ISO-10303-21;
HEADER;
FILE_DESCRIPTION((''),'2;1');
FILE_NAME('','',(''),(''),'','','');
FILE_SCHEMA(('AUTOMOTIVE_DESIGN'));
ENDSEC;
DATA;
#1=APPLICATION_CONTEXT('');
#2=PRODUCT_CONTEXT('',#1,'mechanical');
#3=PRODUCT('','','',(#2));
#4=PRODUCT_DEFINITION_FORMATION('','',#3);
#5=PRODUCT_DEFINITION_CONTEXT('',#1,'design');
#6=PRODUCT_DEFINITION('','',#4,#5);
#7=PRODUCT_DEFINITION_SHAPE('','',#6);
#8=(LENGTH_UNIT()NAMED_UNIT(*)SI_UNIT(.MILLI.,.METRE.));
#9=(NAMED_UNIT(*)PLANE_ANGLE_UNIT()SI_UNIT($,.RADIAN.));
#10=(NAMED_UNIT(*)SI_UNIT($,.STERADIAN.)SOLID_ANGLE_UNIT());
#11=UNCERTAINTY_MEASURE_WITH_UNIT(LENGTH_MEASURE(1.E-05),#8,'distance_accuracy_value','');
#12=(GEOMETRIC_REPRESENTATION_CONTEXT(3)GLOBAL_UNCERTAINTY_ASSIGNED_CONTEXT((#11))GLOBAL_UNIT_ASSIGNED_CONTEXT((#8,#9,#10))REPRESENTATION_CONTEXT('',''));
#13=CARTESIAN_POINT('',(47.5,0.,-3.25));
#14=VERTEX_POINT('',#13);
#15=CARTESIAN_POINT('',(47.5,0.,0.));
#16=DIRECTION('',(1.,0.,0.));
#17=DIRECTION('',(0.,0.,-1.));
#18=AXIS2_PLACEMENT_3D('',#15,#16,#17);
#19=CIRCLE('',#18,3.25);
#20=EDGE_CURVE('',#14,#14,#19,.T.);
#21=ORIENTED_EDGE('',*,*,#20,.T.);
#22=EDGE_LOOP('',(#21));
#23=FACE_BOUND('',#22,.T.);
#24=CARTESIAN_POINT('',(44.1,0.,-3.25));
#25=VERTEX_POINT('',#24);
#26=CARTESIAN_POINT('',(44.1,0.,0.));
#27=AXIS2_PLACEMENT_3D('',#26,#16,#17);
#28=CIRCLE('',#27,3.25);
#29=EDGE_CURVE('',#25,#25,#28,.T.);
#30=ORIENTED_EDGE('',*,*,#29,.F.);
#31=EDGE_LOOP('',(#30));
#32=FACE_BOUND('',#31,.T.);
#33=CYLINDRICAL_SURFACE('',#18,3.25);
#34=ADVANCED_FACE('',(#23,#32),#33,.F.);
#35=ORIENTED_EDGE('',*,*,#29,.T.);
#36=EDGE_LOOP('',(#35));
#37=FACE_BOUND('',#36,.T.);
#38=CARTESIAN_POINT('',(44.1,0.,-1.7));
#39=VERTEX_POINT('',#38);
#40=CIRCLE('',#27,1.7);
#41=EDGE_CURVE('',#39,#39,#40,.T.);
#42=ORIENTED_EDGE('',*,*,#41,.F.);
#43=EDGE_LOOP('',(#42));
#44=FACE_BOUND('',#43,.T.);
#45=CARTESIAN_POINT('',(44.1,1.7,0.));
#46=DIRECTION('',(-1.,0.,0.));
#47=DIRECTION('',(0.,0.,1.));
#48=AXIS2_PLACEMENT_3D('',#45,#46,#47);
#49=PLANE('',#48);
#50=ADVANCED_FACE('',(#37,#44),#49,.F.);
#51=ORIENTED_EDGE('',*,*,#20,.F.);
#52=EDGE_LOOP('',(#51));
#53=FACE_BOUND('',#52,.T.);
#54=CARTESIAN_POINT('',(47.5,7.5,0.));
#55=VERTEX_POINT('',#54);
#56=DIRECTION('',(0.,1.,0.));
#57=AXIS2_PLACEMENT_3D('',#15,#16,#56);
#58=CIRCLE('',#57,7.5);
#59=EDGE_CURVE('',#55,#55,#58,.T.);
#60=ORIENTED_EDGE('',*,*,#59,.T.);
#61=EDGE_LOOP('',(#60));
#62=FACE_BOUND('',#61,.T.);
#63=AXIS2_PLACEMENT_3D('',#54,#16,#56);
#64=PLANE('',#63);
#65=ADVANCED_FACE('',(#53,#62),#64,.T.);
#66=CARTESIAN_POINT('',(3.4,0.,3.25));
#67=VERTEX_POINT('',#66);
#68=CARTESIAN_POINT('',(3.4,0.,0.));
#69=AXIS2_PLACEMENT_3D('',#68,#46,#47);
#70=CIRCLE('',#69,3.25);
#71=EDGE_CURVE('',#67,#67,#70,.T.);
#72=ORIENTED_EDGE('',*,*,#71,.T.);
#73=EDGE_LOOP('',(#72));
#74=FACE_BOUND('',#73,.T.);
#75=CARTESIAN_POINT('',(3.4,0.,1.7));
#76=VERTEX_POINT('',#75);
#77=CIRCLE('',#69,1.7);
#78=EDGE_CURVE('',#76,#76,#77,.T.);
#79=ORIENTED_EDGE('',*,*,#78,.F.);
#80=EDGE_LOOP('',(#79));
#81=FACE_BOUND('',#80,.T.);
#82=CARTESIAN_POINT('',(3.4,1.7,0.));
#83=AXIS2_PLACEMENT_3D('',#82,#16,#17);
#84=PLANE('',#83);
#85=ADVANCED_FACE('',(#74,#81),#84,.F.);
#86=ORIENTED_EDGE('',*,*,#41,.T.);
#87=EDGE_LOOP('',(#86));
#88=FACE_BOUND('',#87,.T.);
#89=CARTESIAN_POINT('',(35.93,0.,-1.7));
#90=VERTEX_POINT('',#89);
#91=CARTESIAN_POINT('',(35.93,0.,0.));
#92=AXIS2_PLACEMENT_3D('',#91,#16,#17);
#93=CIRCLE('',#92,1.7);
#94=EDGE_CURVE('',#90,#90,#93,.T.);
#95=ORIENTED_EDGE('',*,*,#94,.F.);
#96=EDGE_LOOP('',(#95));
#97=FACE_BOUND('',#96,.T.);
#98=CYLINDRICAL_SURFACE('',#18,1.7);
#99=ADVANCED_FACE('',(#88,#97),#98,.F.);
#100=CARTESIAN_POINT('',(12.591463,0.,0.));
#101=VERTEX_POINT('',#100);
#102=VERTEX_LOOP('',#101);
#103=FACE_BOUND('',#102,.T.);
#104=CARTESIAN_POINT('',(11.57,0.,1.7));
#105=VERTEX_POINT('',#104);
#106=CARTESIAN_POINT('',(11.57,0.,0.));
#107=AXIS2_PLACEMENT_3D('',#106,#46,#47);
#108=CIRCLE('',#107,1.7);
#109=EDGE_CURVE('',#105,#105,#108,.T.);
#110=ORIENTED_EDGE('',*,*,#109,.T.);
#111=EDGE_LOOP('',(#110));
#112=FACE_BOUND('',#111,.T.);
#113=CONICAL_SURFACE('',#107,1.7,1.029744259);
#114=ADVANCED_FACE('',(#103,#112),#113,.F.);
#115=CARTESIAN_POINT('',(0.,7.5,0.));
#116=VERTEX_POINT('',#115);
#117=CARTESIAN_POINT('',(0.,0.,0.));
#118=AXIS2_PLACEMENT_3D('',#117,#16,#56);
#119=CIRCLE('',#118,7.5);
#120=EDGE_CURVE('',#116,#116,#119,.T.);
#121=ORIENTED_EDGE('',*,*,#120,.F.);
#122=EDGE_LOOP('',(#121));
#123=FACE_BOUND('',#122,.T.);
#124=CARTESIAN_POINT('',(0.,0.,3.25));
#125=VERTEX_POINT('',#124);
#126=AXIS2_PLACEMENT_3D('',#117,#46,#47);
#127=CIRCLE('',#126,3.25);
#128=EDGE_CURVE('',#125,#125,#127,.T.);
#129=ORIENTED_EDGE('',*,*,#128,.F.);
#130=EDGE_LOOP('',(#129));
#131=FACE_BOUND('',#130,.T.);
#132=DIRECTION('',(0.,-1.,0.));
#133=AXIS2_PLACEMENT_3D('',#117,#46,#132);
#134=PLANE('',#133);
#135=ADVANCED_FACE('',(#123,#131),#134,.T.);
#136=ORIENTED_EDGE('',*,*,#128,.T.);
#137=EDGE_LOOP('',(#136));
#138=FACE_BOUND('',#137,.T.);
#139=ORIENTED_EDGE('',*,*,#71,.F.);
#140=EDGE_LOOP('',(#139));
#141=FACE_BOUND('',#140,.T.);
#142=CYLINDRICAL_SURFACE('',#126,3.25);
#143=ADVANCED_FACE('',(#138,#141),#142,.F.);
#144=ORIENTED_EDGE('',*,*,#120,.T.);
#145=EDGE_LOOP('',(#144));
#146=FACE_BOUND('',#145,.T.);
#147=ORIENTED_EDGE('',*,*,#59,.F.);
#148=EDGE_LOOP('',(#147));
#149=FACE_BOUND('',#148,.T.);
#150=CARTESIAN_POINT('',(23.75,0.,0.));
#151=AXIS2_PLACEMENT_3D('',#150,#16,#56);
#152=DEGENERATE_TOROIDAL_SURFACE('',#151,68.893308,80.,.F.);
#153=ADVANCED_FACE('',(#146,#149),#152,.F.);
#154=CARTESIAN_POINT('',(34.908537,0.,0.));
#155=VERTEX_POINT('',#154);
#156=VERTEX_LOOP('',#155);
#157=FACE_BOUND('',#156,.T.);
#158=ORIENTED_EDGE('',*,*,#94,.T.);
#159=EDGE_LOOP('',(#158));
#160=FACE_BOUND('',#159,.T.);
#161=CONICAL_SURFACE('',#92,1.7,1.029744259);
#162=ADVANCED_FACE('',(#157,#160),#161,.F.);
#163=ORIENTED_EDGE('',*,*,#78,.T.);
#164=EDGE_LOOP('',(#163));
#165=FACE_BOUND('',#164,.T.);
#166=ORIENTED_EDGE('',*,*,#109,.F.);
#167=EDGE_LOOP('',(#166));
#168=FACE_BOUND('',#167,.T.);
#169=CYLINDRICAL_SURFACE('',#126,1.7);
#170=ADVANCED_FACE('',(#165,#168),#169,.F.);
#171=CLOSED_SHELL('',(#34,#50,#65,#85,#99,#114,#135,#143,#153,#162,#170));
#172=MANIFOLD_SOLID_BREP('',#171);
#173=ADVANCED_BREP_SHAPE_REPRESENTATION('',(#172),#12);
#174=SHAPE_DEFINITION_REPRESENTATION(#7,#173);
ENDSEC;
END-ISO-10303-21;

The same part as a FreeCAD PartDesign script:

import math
import FreeCAD as App
import Part
import Sketcher

V = App.Vector
Q = App.Units.Quantity

doc = App.newDocument("Part")
body = doc.addObject("PartDesign::Body", "Body")

# Sketch on XY plane
sketch1 = body.newObject("Sketcher::SketchObject", "Sketch")
sketch1.AttachmentSupport = (doc.getObject("XY_Plane"), [""])
sketch1.MapMode = "FlatFace"
sketch1.addGeometry(Part.LineSegment(V(0, 8, 0), V(0, 0, 0)), False)
sketch1.addGeometry(Part.LineSegment(V(0, 0, 0), V(48, 0, 0)), False)
sketch1.addGeometry(Part.LineSegment(V(48, 0, 0), V(48, 8, 0)), False)
sketch1.addGeometry(Part.ArcOfCircle(Part.Circle(V(24, -69, 0), V(0, 0, 1), 80), math.radians(73), math.radians(107)), False)
sketch1.addConstraint(Sketcher.Constraint("Coincident", 0, 2, 1, 1))
sketch1.addConstraint(Sketcher.Constraint("Coincident", 1, 2, 2, 1))
sketch1.addConstraint(Sketcher.Constraint("Coincident", 2, 2, 3, 1))
sketch1.addConstraint(Sketcher.Constraint("Coincident", 3, 2, 0, 1))
sketch1.addConstraint(Sketcher.Constraint("Vertical", 0))
sketch1.addConstraint(Sketcher.Constraint("Horizontal", 1))
sketch1.addConstraint(Sketcher.Constraint("Vertical", 2))
sketch1.addConstraint(Sketcher.Constraint("Coincident", 0, 2, -1, 1))
sketch1.addConstraint(Sketcher.Constraint("Horizontal", 2, 2, 3, 2))
sketch1.addConstraint(Sketcher.Constraint("Radius", 3, Q("80 mm")))
sketch1.addConstraint(Sketcher.Constraint("DistanceX", 1, 1, 1, 2, Q("47.5 mm")))
sketch1.addConstraint(Sketcher.Constraint("DistanceY", 0, 2, 0, 1, Q("7.5 mm")))
revolution = body.newObject("PartDesign::Revolution", "Revolution")
revolution.Profile = sketch1
revolution.ReferenceAxis = (sketch1, ["H_Axis"])
revolution.Angle = 360

# Sketch on YZ plane
sketch2 = body.newObject("Sketcher::SketchObject", "Sketch001")
sketch2.AttachmentSupport = (doc.getObject("YZ_Plane"), [""])
sketch2.MapMode = "FlatFace"
sketch2.AttachmentOffset = App.Placement(V(0, 0, 47.5), App.Rotation())
sketch2.addGeometry(Part.Circle(V(0, 0, 0), V(0, 0, 1), 1.7), False)
sketch2.addConstraint(Sketcher.Constraint("Coincident", 0, 3, -1, 1))
sketch2.addConstraint(Sketcher.Constraint("Diameter", 0, Q("3.4 mm")))
doc.recompute()
hole = body.newObject("PartDesign::Hole", "Hole")
hole.Profile = sketch2
hole.ThreadType = "None"
hole.Diameter = 3.4
hole.DepthType = "Dimension"
hole.Depth = 11.57
hole.DrillPoint = "Angled"
hole.DrillPointAngle = 118
hole.HoleCutType = "Counterbore"
hole.HoleCutDiameter = 6.5
hole.HoleCutDepth = 3.4

# Sketch on YZ plane
sketch3 = body.newObject("Sketcher::SketchObject", "Sketch002")
sketch3.AttachmentSupport = (doc.getObject("YZ_Plane"), [""])
sketch3.MapMode = "FlatFace"
sketch3.addGeometry(Part.Circle(V(0, 0, 0), V(0, 0, 1), 1.7), False)
sketch3.addConstraint(Sketcher.Constraint("Coincident", 0, 3, -1, 1))
sketch3.addConstraint(Sketcher.Constraint("Diameter", 0, Q("3.4 mm")))
doc.recompute()
hole2 = body.newObject("PartDesign::Hole", "Hole001")
hole2.Profile = sketch3
hole2.ThreadType = "None"
hole2.Diameter = 3.4
hole2.DepthType = "Dimension"
hole2.Depth = 11.57
hole2.DrillPoint = "Angled"
hole2.DrillPointAngle = 118
hole2.HoleCutType = "Counterbore"
hole2.HoleCutDiameter = 6.5
hole2.HoleCutDepth = 3.4
hole2.Reversed = True

doc.recompute()
